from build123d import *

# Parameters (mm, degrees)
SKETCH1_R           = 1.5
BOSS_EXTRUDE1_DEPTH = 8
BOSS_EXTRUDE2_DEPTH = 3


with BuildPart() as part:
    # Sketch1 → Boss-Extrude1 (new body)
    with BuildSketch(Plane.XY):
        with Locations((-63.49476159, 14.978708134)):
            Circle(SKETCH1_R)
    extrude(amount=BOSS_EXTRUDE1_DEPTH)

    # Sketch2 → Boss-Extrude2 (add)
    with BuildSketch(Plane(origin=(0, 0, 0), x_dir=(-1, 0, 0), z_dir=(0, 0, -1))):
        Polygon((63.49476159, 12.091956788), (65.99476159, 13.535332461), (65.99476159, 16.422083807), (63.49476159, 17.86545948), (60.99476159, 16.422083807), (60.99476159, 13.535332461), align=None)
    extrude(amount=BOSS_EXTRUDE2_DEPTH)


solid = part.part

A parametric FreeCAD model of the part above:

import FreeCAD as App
import Part
import Sketcher
from FreeCAD import Vector
Q = App.Units.Quantity

doc = App.newDocument("Part")
params = doc.addObject("Spreadsheet::Sheet", "Params")
for row, (alias, value) in enumerate([
    ("sketch1_diameter", "3 mm"),
    ("pad1_length", "8 mm"),
    ("pad2_length", "3 mm"),
], start=1):
    params.set(f"A{row}", alias)
    params.set(f"B{row}", "=" + value)
    params.setAlias(f"B{row}", alias)

body = doc.addObject("PartDesign::Body", "Body")

sketch1 = doc.addObject("Sketcher::SketchObject", "Sketch")
body.addObject(sketch1)
sketch1.AttachmentSupport = (doc.XY_Plane, [""])
sketch1.MapMode = "FlatFace"
sketch1.addGeometry(Part.Circle(Vector(-63.5, 15, 0), Vector(0, 0, 1), 1.5), False)
sketch1.addConstraint([
    Sketcher.Constraint("Diameter", 0, 3.0),
    Sketcher.Constraint("DistanceX", 0, 3, -1, 1, 63.494762),
    Sketcher.Constraint("DistanceY", -1, 1, 0, 3, 14.978708),
])
sketch1.setExpression("Constraints[0]", "Params.sketch1_diameter")
pad1 = doc.addObject("PartDesign::Pad", "Pad")
body.addObject(pad1)
pad1.Profile = sketch1
pad1.setExpression("Length", "Params.pad1_length")

sketch2 = doc.addObject("Sketcher::SketchObject", "Sketch001")
body.addObject(sketch2)
sketch2.AttachmentSupport = (doc.XY_Plane, [""])
sketch2.MapMode = "FlatFace"
sketch2.addGeometry([
    Part.LineSegment(Vector(-63.5, 12.1, 0), Vector(-66, 13.5, 0)),
    Part.LineSegment(Vector(-66, 13.5, 0), Vector(-66, 16.4, 0)),
    Part.LineSegment(Vector(-66, 16.4, 0), Vector(-63.5, 17.9, 0)),
    Part.LineSegment(Vector(-63.5, 17.9, 0), Vector(-61, 16.4, 0)),
    Part.LineSegment(Vector(-61, 16.4, 0), Vector(-61, 13.5, 0)),
    Part.LineSegment(Vector(-61, 13.5, 0), Vector(-63.5, 12.1, 0)),
], False)
sketch2.addConstraint([
    Sketcher.Constraint("Coincident", 0, 2, 1, 1),
    Sketcher.Constraint("Coincident", 1, 2, 2, 1),
    Sketcher.Constraint("Coincident", 2, 2, 3, 1),
    Sketcher.Constraint("Coincident", 3, 2, 4, 1),
    Sketcher.Constraint("Coincident", 4, 2, 5, 1),
    Sketcher.Constraint("Coincident", 5, 2, 0, 1),
    Sketcher.Constraint("Vertical", 1),
    Sketcher.Constraint("Vertical", 4),
    Sketcher.Constraint("Parallel", 0, 3),
    Sketcher.Constraint("Parallel", 2, 5),
    Sketcher.Constraint("Horizontal", 1, 2, 3, 2),
    Sketcher.Constraint("Horizontal", 0, 2, 4, 2),
    Sketcher.Constraint("Vertical", 2, 2, 5, 2),
    Sketcher.Constraint("Angle", 0, Q("150 deg")),
    Sketcher.Constraint("DistanceX", 1, 2, 3, 2, 5.0),
    Sketcher.Constraint("DistanceY", 1, 1, 1, 2, 2.886751),
    Sketcher.Constraint("DistanceX", 0, 2, -1, 1, 65.994762),
    Sketcher.Constraint("DistanceY", -1, 1, 2, 2, 17.865459),
])
pad2 = doc.addObject("PartDesign::Pad", "Pad001")
body.addObject(pad2)
pad2.Profile = sketch2
pad2.setExpression("Length", "Params.pad2_length")
pad2.Reversed = True

doc.recompute()
